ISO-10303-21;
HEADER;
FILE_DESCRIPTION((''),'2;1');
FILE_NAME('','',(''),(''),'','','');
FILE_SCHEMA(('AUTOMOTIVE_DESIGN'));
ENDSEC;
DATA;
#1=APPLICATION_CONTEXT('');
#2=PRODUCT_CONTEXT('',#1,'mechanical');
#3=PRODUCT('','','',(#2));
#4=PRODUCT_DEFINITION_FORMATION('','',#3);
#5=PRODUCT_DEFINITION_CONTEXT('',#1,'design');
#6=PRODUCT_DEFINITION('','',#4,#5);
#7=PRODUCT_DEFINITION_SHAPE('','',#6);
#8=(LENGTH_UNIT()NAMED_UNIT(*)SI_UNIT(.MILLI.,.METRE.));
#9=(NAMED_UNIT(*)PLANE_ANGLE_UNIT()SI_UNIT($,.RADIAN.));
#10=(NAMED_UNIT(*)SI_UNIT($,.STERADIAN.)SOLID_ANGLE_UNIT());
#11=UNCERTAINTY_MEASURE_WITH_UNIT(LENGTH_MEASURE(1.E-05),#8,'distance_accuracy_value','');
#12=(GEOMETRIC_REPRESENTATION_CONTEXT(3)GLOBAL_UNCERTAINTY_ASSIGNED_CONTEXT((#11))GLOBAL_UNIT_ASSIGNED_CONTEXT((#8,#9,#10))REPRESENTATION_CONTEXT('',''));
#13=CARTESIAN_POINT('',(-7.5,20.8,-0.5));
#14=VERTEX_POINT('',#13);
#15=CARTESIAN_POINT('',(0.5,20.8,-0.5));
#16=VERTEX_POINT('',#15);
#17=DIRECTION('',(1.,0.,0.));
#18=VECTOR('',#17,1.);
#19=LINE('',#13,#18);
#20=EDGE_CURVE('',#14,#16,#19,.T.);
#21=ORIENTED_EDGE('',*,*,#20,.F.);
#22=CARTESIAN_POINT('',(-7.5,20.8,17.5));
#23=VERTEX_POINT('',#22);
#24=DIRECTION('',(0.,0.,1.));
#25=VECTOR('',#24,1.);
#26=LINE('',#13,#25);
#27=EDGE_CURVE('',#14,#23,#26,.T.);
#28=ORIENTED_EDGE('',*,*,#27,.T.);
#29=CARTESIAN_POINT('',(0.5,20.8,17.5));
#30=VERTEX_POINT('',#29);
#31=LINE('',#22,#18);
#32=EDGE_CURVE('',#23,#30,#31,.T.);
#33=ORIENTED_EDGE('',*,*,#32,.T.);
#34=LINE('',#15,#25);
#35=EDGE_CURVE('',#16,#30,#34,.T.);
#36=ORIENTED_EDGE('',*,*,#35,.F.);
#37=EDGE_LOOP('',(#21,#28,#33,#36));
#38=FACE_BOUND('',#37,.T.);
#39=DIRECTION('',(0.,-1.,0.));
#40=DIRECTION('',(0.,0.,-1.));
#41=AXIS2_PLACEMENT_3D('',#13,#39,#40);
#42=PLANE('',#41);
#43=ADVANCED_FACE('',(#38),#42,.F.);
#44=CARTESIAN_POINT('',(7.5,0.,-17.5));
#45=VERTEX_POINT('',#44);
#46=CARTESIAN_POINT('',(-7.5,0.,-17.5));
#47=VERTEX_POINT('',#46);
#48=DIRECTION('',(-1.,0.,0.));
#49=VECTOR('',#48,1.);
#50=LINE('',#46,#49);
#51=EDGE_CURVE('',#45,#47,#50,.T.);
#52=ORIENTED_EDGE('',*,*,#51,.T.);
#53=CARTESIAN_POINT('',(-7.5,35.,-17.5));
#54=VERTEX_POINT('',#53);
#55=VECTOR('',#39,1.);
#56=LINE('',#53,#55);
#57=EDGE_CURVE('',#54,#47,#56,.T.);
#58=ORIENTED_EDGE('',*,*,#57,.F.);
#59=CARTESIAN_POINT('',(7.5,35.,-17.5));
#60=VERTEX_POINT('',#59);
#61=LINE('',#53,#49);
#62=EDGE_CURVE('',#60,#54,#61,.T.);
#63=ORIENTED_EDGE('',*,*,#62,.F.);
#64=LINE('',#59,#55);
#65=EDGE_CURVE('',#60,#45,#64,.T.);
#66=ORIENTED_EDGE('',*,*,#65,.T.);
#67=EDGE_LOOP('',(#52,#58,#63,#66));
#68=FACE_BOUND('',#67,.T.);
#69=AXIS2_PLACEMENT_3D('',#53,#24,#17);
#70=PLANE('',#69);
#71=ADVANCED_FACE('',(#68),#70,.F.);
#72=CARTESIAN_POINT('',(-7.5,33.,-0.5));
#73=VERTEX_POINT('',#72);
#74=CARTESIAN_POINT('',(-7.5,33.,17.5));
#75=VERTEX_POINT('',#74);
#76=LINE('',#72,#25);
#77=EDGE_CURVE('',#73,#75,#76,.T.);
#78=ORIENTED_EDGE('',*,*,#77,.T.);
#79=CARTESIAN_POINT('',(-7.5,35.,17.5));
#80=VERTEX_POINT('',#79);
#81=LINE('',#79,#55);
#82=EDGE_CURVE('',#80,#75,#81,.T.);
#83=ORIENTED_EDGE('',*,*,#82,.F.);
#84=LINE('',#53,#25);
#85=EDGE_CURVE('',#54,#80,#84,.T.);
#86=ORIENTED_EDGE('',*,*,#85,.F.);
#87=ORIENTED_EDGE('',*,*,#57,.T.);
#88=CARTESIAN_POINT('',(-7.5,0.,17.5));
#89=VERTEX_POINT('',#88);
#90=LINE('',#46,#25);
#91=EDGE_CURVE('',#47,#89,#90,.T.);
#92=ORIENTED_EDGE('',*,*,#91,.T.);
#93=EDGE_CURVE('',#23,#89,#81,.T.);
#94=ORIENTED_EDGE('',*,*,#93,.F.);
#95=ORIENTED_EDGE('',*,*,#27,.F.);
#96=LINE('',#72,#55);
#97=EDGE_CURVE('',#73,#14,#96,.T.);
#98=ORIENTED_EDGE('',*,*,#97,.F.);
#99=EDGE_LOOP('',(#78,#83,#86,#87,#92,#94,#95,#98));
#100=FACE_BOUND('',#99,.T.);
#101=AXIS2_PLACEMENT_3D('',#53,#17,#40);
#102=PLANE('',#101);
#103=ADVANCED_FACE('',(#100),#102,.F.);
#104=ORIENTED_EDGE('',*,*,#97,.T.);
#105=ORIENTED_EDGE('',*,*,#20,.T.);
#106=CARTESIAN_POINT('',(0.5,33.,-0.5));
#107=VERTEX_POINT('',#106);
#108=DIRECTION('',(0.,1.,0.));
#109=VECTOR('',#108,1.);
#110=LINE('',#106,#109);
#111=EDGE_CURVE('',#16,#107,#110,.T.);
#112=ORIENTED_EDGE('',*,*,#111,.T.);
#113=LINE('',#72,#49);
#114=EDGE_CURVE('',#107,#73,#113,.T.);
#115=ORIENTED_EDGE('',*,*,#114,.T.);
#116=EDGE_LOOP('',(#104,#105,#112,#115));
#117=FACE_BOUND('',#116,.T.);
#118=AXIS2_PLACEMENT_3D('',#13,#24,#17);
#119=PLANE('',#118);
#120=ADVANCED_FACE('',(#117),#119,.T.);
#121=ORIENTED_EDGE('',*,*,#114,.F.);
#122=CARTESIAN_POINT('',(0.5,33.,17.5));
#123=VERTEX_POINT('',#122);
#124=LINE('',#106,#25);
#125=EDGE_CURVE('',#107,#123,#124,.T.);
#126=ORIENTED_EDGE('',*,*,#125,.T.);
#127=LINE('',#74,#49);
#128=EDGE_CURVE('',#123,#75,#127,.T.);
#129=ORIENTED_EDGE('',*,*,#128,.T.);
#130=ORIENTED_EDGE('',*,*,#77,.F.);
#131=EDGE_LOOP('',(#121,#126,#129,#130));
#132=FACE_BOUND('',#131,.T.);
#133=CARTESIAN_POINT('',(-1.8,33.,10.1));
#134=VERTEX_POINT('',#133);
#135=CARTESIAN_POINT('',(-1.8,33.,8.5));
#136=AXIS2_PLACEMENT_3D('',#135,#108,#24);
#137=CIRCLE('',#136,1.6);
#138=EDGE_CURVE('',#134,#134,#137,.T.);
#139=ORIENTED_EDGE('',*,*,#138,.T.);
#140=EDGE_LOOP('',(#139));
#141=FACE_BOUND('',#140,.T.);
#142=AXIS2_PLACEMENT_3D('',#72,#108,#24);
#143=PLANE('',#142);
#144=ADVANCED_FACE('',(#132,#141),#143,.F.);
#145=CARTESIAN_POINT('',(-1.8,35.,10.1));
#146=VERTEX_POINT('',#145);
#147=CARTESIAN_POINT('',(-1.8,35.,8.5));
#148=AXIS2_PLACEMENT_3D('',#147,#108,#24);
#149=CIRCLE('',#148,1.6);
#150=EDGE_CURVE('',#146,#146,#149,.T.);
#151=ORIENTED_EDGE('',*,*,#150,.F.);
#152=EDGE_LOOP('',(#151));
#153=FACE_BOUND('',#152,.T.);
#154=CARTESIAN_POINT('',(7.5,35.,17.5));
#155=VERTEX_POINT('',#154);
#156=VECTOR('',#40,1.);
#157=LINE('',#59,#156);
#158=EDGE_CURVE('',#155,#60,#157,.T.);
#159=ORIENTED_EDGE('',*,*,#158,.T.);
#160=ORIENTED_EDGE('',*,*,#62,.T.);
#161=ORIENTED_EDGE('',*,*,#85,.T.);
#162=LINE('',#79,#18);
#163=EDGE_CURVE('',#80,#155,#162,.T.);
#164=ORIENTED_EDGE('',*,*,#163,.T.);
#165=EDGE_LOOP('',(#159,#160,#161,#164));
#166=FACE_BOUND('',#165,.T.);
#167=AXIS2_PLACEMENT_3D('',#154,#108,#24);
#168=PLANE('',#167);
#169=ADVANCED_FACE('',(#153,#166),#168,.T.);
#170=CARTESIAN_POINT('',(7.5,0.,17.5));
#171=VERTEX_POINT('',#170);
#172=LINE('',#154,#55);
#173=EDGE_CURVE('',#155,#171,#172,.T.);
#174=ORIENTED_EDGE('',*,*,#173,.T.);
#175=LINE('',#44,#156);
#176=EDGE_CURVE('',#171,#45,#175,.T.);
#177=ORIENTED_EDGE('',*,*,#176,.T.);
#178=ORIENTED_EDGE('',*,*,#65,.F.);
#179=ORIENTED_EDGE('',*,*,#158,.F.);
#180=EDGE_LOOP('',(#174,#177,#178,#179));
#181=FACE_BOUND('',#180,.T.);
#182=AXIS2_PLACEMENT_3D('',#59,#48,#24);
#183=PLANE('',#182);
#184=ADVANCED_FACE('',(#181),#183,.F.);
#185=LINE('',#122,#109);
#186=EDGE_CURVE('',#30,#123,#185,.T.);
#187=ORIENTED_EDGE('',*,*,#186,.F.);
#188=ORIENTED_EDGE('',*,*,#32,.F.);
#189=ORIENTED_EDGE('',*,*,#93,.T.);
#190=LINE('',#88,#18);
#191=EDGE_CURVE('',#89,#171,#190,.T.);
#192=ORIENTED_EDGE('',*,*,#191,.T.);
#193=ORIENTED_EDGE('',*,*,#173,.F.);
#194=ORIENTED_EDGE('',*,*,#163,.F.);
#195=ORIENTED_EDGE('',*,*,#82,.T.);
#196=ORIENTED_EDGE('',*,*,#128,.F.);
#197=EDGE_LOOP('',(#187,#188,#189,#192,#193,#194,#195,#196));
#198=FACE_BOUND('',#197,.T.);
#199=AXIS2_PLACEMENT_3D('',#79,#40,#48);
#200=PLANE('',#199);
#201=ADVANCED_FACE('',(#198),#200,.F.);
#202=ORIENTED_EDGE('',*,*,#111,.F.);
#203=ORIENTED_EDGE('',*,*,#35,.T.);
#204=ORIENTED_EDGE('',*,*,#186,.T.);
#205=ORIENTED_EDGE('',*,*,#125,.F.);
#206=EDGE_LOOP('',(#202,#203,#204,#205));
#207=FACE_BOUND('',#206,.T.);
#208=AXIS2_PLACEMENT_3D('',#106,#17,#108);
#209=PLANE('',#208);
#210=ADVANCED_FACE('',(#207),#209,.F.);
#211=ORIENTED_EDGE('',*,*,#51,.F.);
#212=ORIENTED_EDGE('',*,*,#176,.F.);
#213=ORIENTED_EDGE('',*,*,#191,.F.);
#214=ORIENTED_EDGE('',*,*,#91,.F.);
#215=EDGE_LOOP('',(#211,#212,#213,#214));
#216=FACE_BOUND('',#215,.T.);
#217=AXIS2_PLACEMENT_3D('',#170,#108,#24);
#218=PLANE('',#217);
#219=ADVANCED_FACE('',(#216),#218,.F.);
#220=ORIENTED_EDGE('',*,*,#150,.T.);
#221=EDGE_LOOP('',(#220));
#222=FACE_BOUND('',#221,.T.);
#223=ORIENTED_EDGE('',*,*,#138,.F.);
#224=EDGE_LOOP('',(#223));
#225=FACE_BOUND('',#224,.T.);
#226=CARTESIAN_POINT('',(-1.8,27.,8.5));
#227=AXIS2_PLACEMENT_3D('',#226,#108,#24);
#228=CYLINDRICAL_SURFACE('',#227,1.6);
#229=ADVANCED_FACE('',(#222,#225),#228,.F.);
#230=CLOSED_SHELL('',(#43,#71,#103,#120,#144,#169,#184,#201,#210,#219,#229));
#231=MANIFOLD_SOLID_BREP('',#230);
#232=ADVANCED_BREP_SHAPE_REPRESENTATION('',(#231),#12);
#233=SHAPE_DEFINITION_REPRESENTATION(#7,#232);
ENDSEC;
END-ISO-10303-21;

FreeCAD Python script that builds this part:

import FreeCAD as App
import Part
import Sketcher


def add_polygon(sketch, points):
    """Adds a closed chain of lines whose ends are joined by coincident constraints."""
    first, n = sketch.GeometryCount, len(points)
    for a, b in zip(points, points[1:] + points[:1]):
        sketch.addGeometry(Part.LineSegment(App.Vector(*a, 0), App.Vector(*b, 0)), False)
    for i in range(n):
        sketch.addConstraint(Sketcher.Constraint("Coincident", first + i, 2, first + (i + 1) % n, 1))

doc = App.newDocument("Part")
body = doc.addObject("PartDesign::Body", "Body")

# Sketch on XZ plane
sketch1 = body.newObject("Sketcher::SketchObject", "Sketch")
sketch1.AttachmentSupport = (doc.getObject("XZ_Plane"), [""])
sketch1.MapMode = "FlatFace"
add_polygon(sketch1, [(-8, -18), (-8, 18), (8, 18), (8, -18)])  # lines 0-3
sketch1.addConstraint(Sketcher.Constraint("Vertical", 0))
sketch1.addConstraint(Sketcher.Constraint("Horizontal", 1))
sketch1.addConstraint(Sketcher.Constraint("Vertical", 2))
sketch1.addConstraint(Sketcher.Constraint("Horizontal", 3))
sketch1.addConstraint(Sketcher.Constraint("Symmetric", 0, 2, 2, 2, -1, 1))
sketch1.addConstraint(Sketcher.Constraint("DistanceX", 1, 1, 1, 2, 15.0))
sketch1.addConstraint(Sketcher.Constraint("DistanceY", 0, 1, 0, 2, 35.0))
pad1 = body.newObject("PartDesign::Pad", "Pad")
pad1.Profile = sketch1
pad1.Length = 35
pad1.Reversed = True

# Sketch on XY plane
sketch2 = body.newObject("Sketcher::SketchObject", "Sketch001")
sketch2.AttachmentSupport = (doc.getObject("XY_Plane"), [""])
sketch2.MapMode = "FlatFace"
sketch2.AttachmentOffset = App.Placement(App.Vector(0, 0, 17.5), App.Rotation())
add_polygon(sketch2, [(-8, 33), (-8, 21), (0, 21), (0, 33)])  # lines 0-3
sketch2.addConstraint(Sketcher.Constraint("Vertical", 0))
sketch2.addConstraint(Sketcher.Constraint("Horizontal", 1))
sketch2.addConstraint(Sketcher.Constraint("Vertical", 2))
sketch2.addConstraint(Sketcher.Constraint("Horizontal", 3))
sketch2.addConstraint(Sketcher.Constraint("DistanceX", 1, 1, 1, 2, 8.0))
sketch2.addConstraint(Sketcher.Constraint("DistanceY", 0, 2, 0, 1, 12.2))
sketch2.addConstraint(Sketcher.Constraint("DistanceY", -1, 1, 2, 2, 33.0))
sketch2.addConstraint(Sketcher.Constraint("DistanceX", 0, 2, -1, 1, 7.5))
pocket1 = body.newObject("PartDesign::Pocket", "Pocket")
pocket1.Profile = sketch2
pocket1.Length = 18

# Sketch on XZ plane
sketch3 = body.newObject("Sketcher::SketchObject", "Sketch002")
sketch3.AttachmentSupport = (doc.getObject("XZ_Plane"), [""])
sketch3.MapMode = "FlatFace"
sketch3.AttachmentOffset = App.Placement(App.Vector(0, 0, -35), App.Rotation())
sketch3.addGeometry(Part.Circle(App.Vector(-1.8, 8.5, 0), App.Vector(0, 0, 1), 1.6), False)
sketch3.addConstraint(Sketcher.Constraint("Diameter", 0, 3.2))
sketch3.addConstraint(Sketcher.Constraint("DistanceX", 0, 3, -1, 1, 1.8))
sketch3.addConstraint(Sketcher.Constraint("DistanceY", -1, 1, 0, 3, 8.5))
pocket2 = body.newObject("PartDesign::Pocket", "Pocket001")
pocket2.Profile = sketch3
pocket2.Length = 8
pocket2.Reversed = True

doc.recompute()
